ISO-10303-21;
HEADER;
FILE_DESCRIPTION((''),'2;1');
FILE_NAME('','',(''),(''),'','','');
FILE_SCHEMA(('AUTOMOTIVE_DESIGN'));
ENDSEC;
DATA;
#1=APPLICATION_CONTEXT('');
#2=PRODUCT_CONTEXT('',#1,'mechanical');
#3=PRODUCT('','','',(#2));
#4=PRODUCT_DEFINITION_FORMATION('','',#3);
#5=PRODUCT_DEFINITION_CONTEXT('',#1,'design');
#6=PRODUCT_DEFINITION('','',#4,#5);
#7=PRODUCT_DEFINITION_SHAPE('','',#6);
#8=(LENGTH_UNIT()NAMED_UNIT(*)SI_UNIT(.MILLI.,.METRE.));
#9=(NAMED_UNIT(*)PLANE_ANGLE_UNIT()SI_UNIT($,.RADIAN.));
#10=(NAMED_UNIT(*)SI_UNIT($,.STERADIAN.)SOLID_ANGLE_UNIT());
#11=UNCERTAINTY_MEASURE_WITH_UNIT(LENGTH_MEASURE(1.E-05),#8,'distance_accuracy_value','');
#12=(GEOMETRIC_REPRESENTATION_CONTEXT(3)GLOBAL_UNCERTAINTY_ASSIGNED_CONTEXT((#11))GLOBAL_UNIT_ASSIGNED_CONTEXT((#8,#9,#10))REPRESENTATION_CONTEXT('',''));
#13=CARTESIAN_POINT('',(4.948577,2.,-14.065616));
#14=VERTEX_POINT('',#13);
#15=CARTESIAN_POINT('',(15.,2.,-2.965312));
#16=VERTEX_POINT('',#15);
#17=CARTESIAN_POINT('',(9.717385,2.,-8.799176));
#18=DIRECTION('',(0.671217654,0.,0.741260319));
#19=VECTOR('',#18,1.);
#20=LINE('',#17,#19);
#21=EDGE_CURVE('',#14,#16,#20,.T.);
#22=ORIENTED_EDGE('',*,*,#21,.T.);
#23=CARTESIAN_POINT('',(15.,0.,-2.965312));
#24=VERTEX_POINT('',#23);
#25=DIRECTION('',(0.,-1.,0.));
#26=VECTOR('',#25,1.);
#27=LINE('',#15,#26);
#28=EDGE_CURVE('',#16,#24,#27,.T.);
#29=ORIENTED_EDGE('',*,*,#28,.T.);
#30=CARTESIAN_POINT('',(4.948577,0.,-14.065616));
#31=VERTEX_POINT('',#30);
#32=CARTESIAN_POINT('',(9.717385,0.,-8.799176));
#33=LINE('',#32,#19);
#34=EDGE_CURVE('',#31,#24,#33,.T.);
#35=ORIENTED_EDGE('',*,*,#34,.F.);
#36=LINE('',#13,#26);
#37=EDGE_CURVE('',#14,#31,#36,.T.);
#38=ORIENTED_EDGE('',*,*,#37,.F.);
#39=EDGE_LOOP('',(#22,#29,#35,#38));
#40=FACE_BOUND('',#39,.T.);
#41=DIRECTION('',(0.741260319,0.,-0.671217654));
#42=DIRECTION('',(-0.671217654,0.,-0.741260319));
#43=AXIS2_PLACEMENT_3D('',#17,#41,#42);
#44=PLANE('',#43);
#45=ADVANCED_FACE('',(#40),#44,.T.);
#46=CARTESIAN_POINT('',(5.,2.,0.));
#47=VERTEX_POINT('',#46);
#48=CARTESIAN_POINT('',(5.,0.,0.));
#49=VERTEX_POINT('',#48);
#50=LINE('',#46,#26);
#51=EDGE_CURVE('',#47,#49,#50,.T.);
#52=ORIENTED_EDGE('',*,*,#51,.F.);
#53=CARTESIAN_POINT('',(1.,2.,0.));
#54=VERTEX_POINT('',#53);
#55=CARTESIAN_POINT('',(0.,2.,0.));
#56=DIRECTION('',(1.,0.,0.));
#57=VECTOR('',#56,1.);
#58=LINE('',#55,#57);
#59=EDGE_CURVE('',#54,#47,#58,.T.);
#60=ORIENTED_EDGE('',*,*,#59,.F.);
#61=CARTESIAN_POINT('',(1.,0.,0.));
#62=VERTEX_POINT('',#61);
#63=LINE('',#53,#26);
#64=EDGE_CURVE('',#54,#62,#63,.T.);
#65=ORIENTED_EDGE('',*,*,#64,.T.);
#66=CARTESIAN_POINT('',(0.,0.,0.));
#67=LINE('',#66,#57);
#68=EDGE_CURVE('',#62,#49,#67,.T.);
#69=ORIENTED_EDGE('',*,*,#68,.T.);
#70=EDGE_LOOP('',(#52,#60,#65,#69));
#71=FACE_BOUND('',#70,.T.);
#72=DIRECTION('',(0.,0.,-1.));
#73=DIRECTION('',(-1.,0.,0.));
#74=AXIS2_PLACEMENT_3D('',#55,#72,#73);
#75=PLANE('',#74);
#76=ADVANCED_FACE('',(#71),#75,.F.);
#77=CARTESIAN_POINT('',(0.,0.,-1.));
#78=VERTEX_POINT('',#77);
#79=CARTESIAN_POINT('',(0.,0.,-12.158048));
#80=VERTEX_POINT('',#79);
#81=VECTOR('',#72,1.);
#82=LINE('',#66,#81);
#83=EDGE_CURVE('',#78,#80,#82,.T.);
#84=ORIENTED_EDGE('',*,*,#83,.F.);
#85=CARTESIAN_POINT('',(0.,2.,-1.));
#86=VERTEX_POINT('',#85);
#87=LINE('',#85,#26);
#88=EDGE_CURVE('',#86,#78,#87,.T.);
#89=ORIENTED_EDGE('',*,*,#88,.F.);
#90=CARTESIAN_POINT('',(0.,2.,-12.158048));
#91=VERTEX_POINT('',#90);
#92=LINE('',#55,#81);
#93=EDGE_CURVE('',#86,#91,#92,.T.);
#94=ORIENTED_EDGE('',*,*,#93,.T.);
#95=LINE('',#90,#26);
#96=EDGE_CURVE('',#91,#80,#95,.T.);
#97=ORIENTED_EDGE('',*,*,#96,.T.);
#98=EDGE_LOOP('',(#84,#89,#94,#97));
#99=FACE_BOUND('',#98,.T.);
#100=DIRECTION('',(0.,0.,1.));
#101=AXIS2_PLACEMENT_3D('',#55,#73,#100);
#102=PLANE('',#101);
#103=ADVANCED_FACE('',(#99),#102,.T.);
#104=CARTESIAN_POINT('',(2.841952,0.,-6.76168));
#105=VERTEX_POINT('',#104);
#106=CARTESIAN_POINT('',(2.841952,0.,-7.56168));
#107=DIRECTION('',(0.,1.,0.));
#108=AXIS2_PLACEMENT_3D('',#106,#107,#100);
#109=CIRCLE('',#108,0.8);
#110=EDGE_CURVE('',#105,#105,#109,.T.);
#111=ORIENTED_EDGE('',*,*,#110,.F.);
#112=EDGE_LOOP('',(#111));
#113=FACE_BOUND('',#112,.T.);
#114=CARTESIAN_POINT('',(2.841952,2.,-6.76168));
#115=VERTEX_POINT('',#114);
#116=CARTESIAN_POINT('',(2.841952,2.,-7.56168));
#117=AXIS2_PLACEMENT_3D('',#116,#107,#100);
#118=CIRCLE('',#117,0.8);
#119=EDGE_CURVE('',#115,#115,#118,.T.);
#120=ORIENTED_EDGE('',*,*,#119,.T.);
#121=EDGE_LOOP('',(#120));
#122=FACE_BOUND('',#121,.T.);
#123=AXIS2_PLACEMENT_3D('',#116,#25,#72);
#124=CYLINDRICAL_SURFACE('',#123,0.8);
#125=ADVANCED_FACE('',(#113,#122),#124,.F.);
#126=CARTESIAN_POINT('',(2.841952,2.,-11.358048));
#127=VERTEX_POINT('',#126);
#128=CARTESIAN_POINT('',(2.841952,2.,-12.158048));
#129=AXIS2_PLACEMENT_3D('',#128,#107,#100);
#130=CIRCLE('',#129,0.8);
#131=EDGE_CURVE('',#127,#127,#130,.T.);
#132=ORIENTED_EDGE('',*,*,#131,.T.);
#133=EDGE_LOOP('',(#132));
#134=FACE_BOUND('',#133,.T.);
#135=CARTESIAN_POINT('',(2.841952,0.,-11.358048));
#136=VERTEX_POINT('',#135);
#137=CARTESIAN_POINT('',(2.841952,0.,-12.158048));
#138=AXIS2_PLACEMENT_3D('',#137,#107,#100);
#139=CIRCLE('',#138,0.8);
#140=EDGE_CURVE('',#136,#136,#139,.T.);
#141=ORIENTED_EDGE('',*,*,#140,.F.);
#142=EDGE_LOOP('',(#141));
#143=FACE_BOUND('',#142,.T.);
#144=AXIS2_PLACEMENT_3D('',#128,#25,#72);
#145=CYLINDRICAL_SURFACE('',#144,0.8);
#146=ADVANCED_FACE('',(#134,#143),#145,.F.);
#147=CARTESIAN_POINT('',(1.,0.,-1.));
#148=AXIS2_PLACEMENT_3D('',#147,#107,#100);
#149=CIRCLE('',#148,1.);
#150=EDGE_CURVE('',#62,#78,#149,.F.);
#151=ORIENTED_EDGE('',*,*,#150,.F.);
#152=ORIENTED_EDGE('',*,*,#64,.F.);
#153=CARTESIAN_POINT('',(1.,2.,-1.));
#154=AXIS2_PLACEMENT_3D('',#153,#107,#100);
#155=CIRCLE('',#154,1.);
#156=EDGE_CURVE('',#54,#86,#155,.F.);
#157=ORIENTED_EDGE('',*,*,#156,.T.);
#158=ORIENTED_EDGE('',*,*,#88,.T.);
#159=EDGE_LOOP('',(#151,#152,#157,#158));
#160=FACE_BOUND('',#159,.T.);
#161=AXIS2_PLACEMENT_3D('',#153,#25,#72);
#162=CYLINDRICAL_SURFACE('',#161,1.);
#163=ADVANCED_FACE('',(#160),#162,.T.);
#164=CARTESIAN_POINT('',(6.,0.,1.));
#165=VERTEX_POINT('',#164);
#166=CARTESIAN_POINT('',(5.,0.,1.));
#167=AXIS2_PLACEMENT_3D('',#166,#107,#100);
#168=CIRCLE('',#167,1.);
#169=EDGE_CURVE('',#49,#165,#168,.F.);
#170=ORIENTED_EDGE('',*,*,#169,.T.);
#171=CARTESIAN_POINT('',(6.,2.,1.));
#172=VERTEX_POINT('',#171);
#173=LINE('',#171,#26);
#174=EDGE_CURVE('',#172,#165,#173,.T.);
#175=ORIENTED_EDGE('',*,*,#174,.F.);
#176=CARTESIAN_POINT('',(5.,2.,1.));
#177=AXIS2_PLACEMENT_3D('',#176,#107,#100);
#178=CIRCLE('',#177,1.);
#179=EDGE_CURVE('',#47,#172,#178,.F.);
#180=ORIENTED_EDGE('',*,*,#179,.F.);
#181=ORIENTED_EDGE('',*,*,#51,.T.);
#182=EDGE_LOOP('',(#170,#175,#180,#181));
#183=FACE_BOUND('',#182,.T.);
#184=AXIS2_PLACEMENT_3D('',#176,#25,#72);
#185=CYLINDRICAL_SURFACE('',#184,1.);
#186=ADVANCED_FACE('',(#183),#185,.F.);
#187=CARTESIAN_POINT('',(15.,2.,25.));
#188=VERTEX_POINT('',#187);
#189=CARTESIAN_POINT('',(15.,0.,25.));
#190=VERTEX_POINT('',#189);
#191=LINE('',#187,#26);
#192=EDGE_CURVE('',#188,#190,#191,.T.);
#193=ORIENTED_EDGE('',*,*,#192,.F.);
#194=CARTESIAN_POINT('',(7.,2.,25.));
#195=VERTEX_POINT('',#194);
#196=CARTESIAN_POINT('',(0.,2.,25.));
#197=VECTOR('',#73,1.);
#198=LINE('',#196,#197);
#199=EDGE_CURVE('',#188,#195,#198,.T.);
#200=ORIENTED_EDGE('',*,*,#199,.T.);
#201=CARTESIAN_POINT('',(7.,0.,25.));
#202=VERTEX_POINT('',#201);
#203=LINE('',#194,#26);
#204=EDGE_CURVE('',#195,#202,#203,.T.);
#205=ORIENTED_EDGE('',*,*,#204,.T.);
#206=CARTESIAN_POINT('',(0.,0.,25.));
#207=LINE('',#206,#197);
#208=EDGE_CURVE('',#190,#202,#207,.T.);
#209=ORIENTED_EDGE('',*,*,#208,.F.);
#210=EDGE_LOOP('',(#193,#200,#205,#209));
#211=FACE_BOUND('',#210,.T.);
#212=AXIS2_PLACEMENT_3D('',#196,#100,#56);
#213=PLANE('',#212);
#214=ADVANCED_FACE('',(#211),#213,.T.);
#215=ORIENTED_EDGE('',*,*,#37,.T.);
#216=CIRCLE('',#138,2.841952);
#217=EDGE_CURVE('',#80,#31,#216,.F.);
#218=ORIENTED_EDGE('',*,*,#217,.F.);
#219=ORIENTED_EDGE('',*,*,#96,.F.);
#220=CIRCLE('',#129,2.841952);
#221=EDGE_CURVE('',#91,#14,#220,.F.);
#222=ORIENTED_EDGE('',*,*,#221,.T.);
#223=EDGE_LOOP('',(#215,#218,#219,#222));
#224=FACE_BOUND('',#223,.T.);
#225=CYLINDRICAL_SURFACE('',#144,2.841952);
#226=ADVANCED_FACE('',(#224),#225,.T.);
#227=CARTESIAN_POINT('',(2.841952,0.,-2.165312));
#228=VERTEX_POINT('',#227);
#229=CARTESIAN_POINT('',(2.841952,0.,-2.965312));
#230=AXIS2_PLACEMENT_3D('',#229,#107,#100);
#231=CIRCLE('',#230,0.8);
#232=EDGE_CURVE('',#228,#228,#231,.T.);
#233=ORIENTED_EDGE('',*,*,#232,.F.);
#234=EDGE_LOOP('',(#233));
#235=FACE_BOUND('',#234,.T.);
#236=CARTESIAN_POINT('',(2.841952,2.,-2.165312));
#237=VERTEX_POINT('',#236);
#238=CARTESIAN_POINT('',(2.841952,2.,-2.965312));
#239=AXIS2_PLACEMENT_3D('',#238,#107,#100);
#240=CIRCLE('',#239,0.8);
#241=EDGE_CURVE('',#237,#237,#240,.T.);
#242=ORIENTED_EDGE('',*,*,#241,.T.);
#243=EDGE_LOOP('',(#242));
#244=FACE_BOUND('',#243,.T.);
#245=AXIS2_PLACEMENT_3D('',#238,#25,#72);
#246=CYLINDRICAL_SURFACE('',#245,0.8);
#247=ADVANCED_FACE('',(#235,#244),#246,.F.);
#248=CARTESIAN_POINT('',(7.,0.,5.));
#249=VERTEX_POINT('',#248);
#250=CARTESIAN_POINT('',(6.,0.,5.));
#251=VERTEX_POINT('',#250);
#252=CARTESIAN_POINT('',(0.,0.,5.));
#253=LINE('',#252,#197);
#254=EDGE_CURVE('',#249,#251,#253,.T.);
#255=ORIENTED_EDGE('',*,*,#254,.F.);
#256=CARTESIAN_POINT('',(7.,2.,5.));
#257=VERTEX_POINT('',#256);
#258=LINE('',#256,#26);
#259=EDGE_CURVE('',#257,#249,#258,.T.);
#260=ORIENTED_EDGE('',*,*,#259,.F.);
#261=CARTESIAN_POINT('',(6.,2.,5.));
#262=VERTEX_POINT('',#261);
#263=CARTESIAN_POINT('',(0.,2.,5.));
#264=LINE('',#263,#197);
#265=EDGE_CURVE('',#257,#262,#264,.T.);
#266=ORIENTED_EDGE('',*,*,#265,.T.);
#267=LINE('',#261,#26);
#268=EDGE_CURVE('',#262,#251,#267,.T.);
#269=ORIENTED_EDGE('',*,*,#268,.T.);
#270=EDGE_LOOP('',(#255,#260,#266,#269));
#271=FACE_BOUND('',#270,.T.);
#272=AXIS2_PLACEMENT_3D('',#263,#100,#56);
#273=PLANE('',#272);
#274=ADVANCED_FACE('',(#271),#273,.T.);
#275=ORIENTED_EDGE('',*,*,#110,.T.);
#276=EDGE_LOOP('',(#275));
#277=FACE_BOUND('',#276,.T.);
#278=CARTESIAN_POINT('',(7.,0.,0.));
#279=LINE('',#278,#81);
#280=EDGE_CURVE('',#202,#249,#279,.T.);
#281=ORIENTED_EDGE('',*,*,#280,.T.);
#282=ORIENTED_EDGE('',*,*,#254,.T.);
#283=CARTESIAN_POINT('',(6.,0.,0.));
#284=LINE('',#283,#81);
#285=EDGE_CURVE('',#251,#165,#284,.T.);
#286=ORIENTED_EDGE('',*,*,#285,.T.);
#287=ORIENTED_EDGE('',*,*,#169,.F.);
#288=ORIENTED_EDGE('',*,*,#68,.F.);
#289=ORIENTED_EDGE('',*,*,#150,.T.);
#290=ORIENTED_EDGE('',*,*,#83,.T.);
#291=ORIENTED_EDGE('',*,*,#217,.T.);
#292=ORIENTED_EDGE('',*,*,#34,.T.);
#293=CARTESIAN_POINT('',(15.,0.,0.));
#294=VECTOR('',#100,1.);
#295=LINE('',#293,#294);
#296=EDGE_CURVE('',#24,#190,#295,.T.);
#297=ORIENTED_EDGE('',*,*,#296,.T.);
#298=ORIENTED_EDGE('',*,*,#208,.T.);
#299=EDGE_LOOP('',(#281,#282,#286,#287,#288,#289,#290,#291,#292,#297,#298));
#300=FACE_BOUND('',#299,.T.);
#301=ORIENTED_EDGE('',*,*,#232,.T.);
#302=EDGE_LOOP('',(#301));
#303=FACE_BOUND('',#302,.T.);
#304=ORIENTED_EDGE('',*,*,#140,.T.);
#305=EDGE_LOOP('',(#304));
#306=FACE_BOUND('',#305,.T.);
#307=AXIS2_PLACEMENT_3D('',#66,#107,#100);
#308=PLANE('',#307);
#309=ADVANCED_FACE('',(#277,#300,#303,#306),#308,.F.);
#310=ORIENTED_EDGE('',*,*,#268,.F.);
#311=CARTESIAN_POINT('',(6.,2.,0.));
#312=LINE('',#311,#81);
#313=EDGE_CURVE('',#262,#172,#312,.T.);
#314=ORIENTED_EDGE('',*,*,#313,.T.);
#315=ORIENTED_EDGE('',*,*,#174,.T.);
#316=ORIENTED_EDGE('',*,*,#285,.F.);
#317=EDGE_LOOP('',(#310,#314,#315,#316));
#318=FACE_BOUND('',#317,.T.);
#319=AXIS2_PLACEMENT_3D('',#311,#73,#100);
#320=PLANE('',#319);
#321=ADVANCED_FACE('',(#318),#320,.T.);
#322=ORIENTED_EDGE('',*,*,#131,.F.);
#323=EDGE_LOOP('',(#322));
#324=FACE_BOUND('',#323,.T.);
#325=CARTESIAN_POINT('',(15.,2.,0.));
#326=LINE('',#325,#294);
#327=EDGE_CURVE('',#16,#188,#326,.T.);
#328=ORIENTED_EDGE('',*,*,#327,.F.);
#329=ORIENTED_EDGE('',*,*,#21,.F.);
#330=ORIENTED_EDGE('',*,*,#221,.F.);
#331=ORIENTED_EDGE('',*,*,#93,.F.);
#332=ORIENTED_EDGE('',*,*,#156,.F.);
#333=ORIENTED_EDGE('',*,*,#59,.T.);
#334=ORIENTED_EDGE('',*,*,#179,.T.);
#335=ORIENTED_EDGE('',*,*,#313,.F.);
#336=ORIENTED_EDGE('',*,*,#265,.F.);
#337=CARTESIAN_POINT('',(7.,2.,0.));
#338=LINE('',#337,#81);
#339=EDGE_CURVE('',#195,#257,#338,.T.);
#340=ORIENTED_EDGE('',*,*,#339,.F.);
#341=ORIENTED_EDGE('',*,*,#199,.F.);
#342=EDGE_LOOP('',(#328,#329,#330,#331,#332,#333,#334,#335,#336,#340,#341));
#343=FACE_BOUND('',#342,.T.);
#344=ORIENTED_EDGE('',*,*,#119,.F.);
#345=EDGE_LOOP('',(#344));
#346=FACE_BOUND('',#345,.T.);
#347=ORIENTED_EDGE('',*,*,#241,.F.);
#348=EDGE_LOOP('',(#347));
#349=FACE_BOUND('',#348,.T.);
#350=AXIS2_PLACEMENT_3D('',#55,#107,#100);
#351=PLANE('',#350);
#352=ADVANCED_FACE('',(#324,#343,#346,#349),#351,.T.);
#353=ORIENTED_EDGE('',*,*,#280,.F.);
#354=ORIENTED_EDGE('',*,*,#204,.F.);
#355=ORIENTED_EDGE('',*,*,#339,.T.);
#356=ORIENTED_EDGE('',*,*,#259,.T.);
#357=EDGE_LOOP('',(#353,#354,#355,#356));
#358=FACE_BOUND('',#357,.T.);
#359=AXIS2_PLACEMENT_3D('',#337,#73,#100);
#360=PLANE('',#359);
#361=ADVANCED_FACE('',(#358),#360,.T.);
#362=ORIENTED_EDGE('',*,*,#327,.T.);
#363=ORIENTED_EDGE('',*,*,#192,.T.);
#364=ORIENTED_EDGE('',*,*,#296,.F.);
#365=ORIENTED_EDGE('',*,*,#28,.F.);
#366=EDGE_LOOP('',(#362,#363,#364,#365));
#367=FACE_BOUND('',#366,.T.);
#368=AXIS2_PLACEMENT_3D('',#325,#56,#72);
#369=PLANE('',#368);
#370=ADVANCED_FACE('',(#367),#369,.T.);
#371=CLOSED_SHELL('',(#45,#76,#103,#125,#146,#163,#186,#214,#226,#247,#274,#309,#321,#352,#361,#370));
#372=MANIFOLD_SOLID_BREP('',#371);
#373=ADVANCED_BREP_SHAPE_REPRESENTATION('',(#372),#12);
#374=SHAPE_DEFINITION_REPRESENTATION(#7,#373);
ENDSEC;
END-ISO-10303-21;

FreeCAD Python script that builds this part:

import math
import FreeCAD as App
import Part
import Sketcher
Q = App.Units.Quantity

doc = App.newDocument("Part")
body = doc.addObject("PartDesign::Body", "Body")

# Sketch on XZ plane
sketch1 = doc.addObject("Sketcher::SketchObject", "Sketch")
body.addObject(sketch1)
sketch1.AttachmentSupport = (doc.XZ_Plane, [""])
sketch1.MapMode = "FlatFace"
sketch1.addGeometry(Part.LineSegment(App.Vector(1, 0, 0), App.Vector(5, 0, 0)), False)
sketch1.addGeometry(Part.ArcOfCircle(Part.Circle(App.Vector(5, 1, 0), App.Vector(0, 0, 1), 1), math.radians(-90), math.radians(0)), False)
sketch1.addGeometry(Part.LineSegment(App.Vector(6, 1, 0), App.Vector(6, 5, 0)), False)
sketch1.addGeometry(Part.LineSegment(App.Vector(6, 5, 0), App.Vector(7, 5, 0)), False)
sketch1.addGeometry(Part.LineSegment(App.Vector(7, 5, 0), App.Vector(7, 25, 0)), False)
sketch1.addGeometry(Part.LineSegment(App.Vector(7, 25, 0), App.Vector(15, 25, 0)), False)
sketch1.addGeometry(Part.LineSegment(App.Vector(15, 25, 0), App.Vector(15, -3, 0)), False)
sketch1.addGeometry(Part.LineSegment(App.Vector(15, -3, 0), App.Vector(4.9, -14.1, 0)), False)
sketch1.addGeometry(Part.ArcOfCircle(Part.Circle(App.Vector(2.8, -12.2, 0), App.Vector(0, 0, 1), 2.8), math.radians(180), math.radians(318)), False)
sketch1.addGeometry(Part.LineSegment(App.Vector(0, -12.2, 0), App.Vector(0, -1, 0)), False)
sketch1.addGeometry(Part.ArcOfCircle(Part.Circle(App.Vector(1, -1, 0), App.Vector(0, 0, 1), 1), math.radians(90), math.radians(180)), False)
sketch1.addGeometry(Part.Circle(App.Vector(2.8, -3, 0), App.Vector(0, 0, 1), 0.8), False)
sketch1.addGeometry(Part.Circle(App.Vector(2.8, -7.6, 0), App.Vector(0, 0, 1), 0.8), False)
sketch1.addGeometry(Part.Circle(App.Vector(2.8, -12.2, 0), App.Vector(0, 0, 1), 0.8), False)
sketch1.addConstraint(Sketcher.Constraint("Tangent", 0, 2, 1, 1))
sketch1.addConstraint(Sketcher.Constraint("Tangent", 1, 2, 2, 1))
sketch1.addConstraint(Sketcher.Constraint("Coincident", 2, 2, 3, 1))
sketch1.addConstraint(Sketcher.Constraint("Coincident", 3, 2, 4, 1))
sketch1.addConstraint(Sketcher.Constraint("Coincident", 4, 2, 5, 1))
sketch1.addConstraint(Sketcher.Constraint("Coincident", 5, 2, 6, 1))
sketch1.addConstraint(Sketcher.Constraint("Coincident", 6, 2, 7, 1))
sketch1.addConstraint(Sketcher.Constraint("Tangent", 7, 2, 8, 2))
sketch1.addConstraint(Sketcher.Constraint("Tangent", 8, 1, 9, 1))
sketch1.addConstraint(Sketcher.Constraint("Tangent", 9, 2, 10, 2))
sketch1.addConstraint(Sketcher.Constraint("Tangent", 10, 1, 0, 1))
sketch1.addConstraint(Sketcher.Constraint("Horizontal", 0))
sketch1.addConstraint(Sketcher.Constraint("Vertical", 2))
sketch1.addConstraint(Sketcher.Constraint("Horizontal", 3))
sketch1.addConstraint(Sketcher.Constraint("Vertical", 4))
sketch1.addConstraint(Sketcher.Constraint("Horizontal", 5))
sketch1.addConstraint(Sketcher.Constraint("Vertical", 6))
sketch1.addConstraint(Sketcher.Constraint("Vertical", 9))
sketch1.addConstraint(Sketcher.Constraint("Coincident", 13, 3, 8, 3))
sketch1.addConstraint(Sketcher.Constraint("Equal", 1, 10))
sketch1.addConstraint(Sketcher.Constraint("Equal", 11, 12))
sketch1.addConstraint(Sketcher.Constraint("Equal", 12, 13))
sketch1.addConstraint(Sketcher.Constraint("PointOnObject", 0, 2, -1))
sketch1.addConstraint(Sketcher.Constraint("PointOnObject", 8, 1, -2))
sketch1.addConstraint(Sketcher.Constraint("Horizontal", 11, 3, 6, 2))
sketch1.addConstraint(Sketcher.Constraint("Vertical", 8, 3, 11, 3))
sketch1.addConstraint(Sketcher.Constraint("Vertical", 11, 3, 12, 3))
sketch1.addConstraint(Sketcher.Constraint("Equal", 0, 2))
sketch1.addConstraint(Sketcher.Constraint("Radius", 1, Q("1 mm")))
sketch1.addConstraint(Sketcher.Constraint("Diameter", 11, Q("1.6 mm")))
sketch1.addConstraint(Sketcher.Constraint("DistanceX", 0, 1, 0, 2, Q("4 mm")))
sketch1.addConstraint(Sketcher.Constraint("DistanceX", 3, 1, 3, 2, Q("1 mm")))
sketch1.addConstraint(Sketcher.Constraint("DistanceX", 5, 1, 5, 2, Q("8 mm")))
sketch1.addConstraint(Sketcher.Constraint("DistanceY", 4, 1, 4, 2, Q("20 mm")))
sketch1.addConstraint(Sketcher.Constraint("Radius", 8, Q("2.841952 mm")))
sketch1.addConstraint(Sketcher.Constraint("DistanceY", 6, 2, 6, 1, Q("27.965312 mm")))
sketch1.addConstraint(Sketcher.Constraint("DistanceY", 9, 1, 9, 2, Q("11.158048 mm")))
sketch1.addConstraint(Sketcher.Constraint("DistanceY", 12, 3, -1, 1, Q("7.56168 mm")))
pad1 = doc.addObject("PartDesign::Pad", "Pad")
body.addObject(pad1)
pad1.Profile = sketch1
pad1.Length = 2
pad1.Reversed = True

doc.recompute()
